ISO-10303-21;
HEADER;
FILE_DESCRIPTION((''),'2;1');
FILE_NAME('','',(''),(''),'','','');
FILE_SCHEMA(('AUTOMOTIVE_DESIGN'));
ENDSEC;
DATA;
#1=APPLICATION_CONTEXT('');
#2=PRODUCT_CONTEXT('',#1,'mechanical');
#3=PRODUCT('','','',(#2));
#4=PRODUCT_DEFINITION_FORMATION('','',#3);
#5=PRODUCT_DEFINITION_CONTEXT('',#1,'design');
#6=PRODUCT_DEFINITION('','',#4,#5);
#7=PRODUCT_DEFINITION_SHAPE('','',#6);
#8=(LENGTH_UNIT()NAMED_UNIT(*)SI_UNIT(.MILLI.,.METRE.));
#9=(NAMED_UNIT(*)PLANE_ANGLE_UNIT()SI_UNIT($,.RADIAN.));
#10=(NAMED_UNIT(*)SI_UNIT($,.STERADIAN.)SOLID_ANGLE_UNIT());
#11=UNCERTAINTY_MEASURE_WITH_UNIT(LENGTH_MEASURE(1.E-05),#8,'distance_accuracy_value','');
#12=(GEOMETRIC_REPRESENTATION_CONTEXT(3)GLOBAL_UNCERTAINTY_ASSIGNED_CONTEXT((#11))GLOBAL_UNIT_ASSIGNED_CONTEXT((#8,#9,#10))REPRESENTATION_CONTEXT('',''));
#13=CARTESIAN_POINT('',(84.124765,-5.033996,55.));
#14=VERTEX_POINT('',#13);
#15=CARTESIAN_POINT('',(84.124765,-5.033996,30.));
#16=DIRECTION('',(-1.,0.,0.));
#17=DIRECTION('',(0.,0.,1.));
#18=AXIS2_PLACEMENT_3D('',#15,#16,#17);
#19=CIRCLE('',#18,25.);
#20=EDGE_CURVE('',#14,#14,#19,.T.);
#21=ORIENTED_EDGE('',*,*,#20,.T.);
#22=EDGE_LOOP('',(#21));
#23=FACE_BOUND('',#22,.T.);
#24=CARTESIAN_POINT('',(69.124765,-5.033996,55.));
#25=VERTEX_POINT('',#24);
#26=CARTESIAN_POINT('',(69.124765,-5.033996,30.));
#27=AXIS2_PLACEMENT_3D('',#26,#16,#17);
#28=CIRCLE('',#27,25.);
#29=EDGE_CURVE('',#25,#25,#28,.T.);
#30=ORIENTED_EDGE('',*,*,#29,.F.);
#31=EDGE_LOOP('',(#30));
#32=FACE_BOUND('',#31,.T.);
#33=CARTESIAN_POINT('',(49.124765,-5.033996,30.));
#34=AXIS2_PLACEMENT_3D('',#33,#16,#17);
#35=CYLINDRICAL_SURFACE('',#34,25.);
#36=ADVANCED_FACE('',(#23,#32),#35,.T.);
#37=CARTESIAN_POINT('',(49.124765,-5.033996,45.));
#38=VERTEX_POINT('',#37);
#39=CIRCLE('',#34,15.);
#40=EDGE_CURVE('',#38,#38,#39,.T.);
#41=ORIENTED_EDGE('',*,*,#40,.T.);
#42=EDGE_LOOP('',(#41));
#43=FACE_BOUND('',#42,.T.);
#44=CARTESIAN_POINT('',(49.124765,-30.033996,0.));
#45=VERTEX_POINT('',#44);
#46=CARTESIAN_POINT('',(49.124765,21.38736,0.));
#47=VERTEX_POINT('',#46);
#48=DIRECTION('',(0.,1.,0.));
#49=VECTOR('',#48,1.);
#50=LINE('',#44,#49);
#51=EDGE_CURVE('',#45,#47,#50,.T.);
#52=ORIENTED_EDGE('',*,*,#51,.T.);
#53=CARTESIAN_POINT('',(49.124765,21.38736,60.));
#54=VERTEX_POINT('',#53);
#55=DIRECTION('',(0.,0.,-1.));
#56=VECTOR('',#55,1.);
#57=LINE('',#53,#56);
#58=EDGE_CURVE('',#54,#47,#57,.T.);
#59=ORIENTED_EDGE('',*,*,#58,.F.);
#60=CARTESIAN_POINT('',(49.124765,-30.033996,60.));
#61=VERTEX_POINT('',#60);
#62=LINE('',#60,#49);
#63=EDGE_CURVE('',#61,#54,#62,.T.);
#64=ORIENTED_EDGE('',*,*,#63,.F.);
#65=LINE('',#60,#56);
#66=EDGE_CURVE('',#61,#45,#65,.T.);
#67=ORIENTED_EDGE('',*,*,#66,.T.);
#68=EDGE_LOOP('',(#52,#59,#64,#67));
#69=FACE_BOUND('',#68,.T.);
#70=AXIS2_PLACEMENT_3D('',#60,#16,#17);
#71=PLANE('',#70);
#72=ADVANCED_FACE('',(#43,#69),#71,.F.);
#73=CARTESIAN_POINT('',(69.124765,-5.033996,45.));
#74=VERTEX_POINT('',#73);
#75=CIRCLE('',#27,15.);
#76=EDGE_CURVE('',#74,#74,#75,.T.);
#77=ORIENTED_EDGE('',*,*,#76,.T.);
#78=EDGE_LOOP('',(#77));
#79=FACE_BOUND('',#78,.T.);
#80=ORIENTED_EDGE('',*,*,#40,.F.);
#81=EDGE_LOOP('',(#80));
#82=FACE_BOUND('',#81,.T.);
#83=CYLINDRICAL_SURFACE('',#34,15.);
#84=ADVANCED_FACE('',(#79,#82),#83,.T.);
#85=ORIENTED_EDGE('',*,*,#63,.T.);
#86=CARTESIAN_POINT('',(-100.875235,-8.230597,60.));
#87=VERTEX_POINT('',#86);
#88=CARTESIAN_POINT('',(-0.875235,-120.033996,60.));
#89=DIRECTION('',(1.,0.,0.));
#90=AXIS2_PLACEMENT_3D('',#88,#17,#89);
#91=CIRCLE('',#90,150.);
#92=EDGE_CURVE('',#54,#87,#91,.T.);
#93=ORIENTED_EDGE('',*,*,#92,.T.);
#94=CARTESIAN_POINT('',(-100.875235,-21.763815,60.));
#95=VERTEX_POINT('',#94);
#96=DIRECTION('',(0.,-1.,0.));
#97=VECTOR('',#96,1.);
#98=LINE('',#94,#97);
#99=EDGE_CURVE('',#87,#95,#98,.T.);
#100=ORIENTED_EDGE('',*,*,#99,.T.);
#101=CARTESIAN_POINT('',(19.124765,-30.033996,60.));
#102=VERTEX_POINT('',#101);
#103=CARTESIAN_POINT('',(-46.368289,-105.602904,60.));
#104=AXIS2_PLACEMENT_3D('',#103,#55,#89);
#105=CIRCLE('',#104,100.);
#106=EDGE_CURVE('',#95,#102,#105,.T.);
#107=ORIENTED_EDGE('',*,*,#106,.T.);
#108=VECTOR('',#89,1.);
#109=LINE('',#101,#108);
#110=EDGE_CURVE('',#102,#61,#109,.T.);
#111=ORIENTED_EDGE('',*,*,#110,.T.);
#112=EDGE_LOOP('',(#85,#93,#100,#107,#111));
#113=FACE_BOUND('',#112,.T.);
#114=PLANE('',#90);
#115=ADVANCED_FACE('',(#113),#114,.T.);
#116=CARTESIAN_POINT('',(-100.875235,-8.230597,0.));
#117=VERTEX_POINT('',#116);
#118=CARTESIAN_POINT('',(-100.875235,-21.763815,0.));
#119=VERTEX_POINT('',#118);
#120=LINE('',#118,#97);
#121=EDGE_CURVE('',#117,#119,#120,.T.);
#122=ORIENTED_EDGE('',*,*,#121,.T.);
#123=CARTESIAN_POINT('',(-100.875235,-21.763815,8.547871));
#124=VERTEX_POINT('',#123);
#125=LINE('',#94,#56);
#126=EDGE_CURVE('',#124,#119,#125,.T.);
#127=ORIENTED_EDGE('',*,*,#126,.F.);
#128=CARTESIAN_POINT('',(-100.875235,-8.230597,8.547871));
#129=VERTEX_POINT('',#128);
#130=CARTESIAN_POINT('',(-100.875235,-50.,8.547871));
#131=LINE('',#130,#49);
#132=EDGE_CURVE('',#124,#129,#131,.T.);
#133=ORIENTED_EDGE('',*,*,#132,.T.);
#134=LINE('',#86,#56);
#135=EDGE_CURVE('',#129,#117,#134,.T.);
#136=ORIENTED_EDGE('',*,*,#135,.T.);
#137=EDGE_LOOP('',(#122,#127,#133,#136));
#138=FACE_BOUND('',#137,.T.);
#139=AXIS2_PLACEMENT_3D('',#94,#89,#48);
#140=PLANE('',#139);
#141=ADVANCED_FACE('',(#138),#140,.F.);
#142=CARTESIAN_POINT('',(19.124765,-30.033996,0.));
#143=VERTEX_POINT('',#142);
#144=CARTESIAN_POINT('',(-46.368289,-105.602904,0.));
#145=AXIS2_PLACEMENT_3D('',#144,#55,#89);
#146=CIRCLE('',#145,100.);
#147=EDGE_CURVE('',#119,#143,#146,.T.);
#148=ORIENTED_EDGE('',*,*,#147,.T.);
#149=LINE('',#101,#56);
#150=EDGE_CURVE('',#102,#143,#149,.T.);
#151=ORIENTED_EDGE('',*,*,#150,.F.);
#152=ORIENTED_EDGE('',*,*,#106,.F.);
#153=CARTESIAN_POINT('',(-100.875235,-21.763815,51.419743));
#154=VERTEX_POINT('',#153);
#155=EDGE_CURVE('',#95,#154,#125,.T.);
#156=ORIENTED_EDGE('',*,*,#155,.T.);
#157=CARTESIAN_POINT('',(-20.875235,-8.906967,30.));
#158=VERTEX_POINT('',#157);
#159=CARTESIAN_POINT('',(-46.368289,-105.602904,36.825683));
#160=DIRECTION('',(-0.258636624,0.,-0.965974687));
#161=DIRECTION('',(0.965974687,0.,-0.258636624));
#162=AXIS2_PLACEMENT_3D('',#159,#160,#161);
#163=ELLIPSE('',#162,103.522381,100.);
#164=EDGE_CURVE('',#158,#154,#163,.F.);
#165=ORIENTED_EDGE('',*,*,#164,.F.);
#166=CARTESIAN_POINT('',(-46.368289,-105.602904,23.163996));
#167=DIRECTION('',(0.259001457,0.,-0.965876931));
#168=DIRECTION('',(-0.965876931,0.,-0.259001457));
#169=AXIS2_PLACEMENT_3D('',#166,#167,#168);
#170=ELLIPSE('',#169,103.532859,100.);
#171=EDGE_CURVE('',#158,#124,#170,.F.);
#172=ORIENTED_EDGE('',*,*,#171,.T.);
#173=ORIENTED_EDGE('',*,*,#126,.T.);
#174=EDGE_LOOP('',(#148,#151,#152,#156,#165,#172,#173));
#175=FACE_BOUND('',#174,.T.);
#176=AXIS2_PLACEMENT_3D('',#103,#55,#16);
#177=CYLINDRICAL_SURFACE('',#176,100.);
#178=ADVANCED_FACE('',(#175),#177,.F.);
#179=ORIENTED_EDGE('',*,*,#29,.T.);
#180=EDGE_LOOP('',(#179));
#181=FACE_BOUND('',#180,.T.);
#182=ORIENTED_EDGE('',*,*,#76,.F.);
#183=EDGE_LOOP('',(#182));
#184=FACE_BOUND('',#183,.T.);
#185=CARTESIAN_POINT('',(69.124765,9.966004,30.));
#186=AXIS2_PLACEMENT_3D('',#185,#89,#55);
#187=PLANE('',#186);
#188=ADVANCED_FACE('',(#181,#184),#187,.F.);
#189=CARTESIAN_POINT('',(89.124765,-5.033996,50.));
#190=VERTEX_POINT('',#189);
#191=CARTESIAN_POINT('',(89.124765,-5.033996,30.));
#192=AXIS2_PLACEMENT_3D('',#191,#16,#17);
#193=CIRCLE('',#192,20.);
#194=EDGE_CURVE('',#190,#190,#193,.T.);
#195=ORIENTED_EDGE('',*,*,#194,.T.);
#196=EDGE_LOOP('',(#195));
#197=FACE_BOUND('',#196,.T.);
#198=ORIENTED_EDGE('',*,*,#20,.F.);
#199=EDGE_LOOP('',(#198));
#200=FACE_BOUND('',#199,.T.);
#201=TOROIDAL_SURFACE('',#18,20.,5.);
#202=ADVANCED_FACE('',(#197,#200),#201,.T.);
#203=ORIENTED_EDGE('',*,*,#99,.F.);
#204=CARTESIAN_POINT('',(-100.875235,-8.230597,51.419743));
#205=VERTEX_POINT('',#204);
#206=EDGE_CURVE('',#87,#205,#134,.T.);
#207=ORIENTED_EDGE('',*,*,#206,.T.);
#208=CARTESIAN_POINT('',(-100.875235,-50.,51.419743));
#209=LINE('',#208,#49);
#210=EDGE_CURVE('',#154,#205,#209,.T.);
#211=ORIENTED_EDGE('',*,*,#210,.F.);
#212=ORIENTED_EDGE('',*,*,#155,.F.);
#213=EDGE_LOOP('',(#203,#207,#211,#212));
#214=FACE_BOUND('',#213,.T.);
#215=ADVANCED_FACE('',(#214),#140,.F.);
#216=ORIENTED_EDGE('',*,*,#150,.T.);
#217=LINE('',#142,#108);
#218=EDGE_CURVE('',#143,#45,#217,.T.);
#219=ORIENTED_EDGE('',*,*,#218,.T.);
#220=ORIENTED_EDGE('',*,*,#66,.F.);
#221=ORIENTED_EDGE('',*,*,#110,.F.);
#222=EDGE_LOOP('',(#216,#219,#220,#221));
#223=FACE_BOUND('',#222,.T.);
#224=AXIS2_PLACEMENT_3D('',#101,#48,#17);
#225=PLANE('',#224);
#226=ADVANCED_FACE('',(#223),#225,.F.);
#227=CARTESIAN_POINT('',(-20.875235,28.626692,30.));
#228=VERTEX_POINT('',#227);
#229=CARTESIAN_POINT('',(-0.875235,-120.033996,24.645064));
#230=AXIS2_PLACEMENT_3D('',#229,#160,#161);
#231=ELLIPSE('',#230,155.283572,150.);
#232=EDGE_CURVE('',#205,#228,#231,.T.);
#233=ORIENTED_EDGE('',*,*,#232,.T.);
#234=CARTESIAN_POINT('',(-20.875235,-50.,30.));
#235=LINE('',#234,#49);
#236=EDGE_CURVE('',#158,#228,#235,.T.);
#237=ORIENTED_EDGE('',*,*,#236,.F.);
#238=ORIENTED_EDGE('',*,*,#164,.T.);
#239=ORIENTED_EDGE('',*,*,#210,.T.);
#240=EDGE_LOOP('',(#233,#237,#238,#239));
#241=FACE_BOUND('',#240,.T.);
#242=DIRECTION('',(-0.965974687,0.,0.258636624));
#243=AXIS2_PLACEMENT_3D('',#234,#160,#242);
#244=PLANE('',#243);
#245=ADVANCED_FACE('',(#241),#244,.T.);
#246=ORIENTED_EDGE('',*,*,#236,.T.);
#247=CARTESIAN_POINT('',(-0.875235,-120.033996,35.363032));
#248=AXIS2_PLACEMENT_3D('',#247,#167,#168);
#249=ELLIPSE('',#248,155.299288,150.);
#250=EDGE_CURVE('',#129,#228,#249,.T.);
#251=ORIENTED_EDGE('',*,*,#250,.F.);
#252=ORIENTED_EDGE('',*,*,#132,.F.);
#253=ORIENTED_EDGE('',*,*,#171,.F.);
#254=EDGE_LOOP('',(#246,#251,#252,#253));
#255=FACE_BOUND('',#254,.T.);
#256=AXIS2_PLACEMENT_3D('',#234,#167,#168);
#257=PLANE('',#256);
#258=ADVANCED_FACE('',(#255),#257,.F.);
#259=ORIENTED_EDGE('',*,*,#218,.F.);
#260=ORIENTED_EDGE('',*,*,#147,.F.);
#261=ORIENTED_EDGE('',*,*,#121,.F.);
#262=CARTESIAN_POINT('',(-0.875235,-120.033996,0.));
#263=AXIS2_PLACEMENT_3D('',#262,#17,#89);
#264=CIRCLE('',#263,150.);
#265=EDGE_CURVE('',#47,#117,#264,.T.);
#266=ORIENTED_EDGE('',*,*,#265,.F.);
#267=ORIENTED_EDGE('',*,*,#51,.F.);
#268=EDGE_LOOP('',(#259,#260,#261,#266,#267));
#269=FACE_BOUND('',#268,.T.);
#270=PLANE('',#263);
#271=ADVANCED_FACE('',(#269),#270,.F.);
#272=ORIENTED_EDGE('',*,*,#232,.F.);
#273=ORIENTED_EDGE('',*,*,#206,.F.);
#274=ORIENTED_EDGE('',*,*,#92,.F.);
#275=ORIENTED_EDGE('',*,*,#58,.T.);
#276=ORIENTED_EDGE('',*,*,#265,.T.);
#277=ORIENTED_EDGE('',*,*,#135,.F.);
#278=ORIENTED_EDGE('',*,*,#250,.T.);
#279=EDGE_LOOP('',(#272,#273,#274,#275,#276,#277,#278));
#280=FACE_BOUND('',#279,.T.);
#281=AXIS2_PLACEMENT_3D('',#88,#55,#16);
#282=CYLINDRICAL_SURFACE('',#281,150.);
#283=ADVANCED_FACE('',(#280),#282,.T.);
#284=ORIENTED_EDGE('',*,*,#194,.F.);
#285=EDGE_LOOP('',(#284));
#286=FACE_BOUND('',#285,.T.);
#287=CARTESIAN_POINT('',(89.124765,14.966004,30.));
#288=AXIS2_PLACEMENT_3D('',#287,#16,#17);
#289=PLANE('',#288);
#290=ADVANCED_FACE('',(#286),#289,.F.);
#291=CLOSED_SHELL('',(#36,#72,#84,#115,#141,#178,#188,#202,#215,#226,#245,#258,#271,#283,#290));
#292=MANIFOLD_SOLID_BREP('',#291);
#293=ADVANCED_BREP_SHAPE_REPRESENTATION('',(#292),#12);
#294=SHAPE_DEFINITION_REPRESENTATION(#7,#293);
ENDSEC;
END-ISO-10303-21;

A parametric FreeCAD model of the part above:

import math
import FreeCAD as App
import Part
import Sketcher
Q = App.Units.Quantity

doc = App.newDocument("Part")
body = doc.addObject("PartDesign::Body", "Body")

# Sketch on XY plane
sketch1 = body.newObject("Sketcher::SketchObject", "Sketch")
sketch1.AttachmentSupport = (doc.getObject("XY_Plane"), [""])
sketch1.MapMode = "FlatFace"
sketch1.addGeometry([
    Part.LineSegment(App.Vector(49, -30, 0), App.Vector(49, 21, 0)),  # 0
    Part.ArcOfCircle(Part.Circle(App.Vector(-1, -120, 0), App.Vector(0, 0, 1), 150), math.radians(71), math.radians(132)),  # 1
    Part.LineSegment(App.Vector(-101, -8, 0), App.Vector(-101, -22, 0)),  # 2
    Part.ArcOfCircle(Part.Circle(App.Vector(-46, -106, 0), App.Vector(0, 0, 1), 100), math.radians(49), math.radians(123)),  # 3
    Part.LineSegment(App.Vector(19, -30, 0), App.Vector(49, -30, 0)),  # 4
], False)
sketch1.addConstraint([
    Sketcher.Constraint("Coincident", 0, 2, 1, 1),
    Sketcher.Constraint("Coincident", 1, 2, 2, 1),
    Sketcher.Constraint("Coincident", 2, 2, 3, 2),
    Sketcher.Constraint("Coincident", 3, 1, 4, 1),
    Sketcher.Constraint("Coincident", 4, 2, 0, 1),
    Sketcher.Constraint("Vertical", 0),
    Sketcher.Constraint("Vertical", 2),
    Sketcher.Constraint("Horizontal", 4),
    Sketcher.Constraint("Radius", 1, Q("150 mm")),
    Sketcher.Constraint("Radius", 3, Q("100 mm")),
    Sketcher.Constraint("DistanceX", 4, 1, 4, 2, Q("30 mm")),
    Sketcher.Constraint("DistanceX", 1, 3, 0, 2, Q("50 mm")),
    Sketcher.Constraint("DistanceX", 1, 2, 1, 3, Q("100 mm")),
    Sketcher.Constraint("DistanceY", 1, 3, 3, 1, Q("90 mm")),
    Sketcher.Constraint("DistanceY", 2, 2, 2, 1, Q("13.533218 mm")),
    Sketcher.Constraint("DistanceX", 3, 3, -1, 1, Q("46.368289 mm")),
    Sketcher.Constraint("DistanceY", -1, 1, 0, 2, Q("21.38736 mm")),
])
pad1 = body.newObject("PartDesign::Pad", "Pad")
pad1.Profile = sketch1
pad1.Length = 60

# Sketch on XY plane
sketch2 = body.newObject("Sketcher::SketchObject", "Sketch001")
sketch2.AttachmentSupport = (doc.getObject("XY_Plane"), [""])
sketch2.MapMode = "FlatFace"
sketch2.AttachmentOffset = App.Placement(App.Vector(0, 0, 30), App.Rotation())
sketch2.addGeometry([
    Part.LineSegment(App.Vector(49, 10, 0), App.Vector(49, -5, 0)),  # 0
    Part.LineSegment(App.Vector(49, -5, 0), App.Vector(89, -5, 0)),  # 1
    Part.LineSegment(App.Vector(89, -5, 0), App.Vector(89, 15, 0)),  # 2
    Part.ArcOfCircle(Part.Circle(App.Vector(84, 15, 0), App.Vector(0, 0, 1), 5), math.radians(0), math.radians(90)),  # 3
    Part.LineSegment(App.Vector(84, 20, 0), App.Vector(69, 20, 0)),  # 4
    Part.LineSegment(App.Vector(69, 20, 0), App.Vector(69, 10, 0)),  # 5
    Part.LineSegment(App.Vector(69, 10, 0), App.Vector(49, 10, 0)),  # 6
], False)
sketch2.addGeometry(Part.LineSegment(App.Vector(49, -5, 0), App.Vector(89, -5, 0)), True)  # axis
sketch2.addConstraint([
    Sketcher.Constraint("Coincident", 0, 2, 1, 1),
    Sketcher.Constraint("Coincident", 1, 2, 2, 1),
    Sketcher.Constraint("Tangent", 2, 2, 3, 1),
    Sketcher.Constraint("Tangent", 3, 2, 4, 1),
    Sketcher.Constraint("Coincident", 4, 2, 5, 1),
    Sketcher.Constraint("Coincident", 5, 2, 6, 1),
    Sketcher.Constraint("Coincident", 6, 2, 0, 1),
    Sketcher.Constraint("Vertical", 0),
    Sketcher.Constraint("Horizontal", 1),
    Sketcher.Constraint("Vertical", 2),
    Sketcher.Constraint("Horizontal", 4),
    Sketcher.Constraint("Vertical", 5),
    Sketcher.Constraint("Horizontal", 6),
    Sketcher.Constraint("Horizontal", 7),
    Sketcher.Constraint("Coincident", 7, 1, 0, 2),
    Sketcher.Constraint("Vertical", 2, 2, 7, 2),
    Sketcher.Constraint("Equal", 4, 0),
    Sketcher.Constraint("Equal", 6, 2),
    Sketcher.Constraint("Radius", 3, Q("5 mm")),
    Sketcher.Constraint("DistanceX", 1, 1, 1, 2, Q("40 mm")),
    Sketcher.Constraint("DistanceX", 4, 2, 4, 1, Q("15 mm")),
    Sketcher.Constraint("DistanceX", -1, 1, 3, 3, Q("84.124765 mm")),
    Sketcher.Constraint("DistanceY", -1, 1, 3, 3, Q("14.966004 mm")),
])
revolution = body.newObject("PartDesign::Revolution", "Revolution")
revolution.Profile = sketch2
revolution.ReferenceAxis = (sketch2, ["Axis0"])
revolution.Angle = 360

# Sketch on XZ plane
sketch3 = body.newObject("Sketcher::SketchObject", "Sketch002")
sketch3.AttachmentSupport = (doc.getObject("XZ_Plane"), [""])
sketch3.MapMode = "FlatFace"
sketch3.addGeometry([
    Part.LineSegment(App.Vector(-101, 9, 0), App.Vector(-101, 51, 0)),
    Part.LineSegment(App.Vector(-101, 51, 0), App.Vector(-21, 30, 0)),
    Part.LineSegment(App.Vector(-21, 30, 0), App.Vector(-101, 9, 0)),
], False)
sketch3.addConstraint([
    Sketcher.Constraint("Coincident", 0, 2, 1, 1),
    Sketcher.Constraint("Coincident", 1, 2, 2, 1),
    Sketcher.Constraint("Coincident", 2, 2, 0, 1),
    Sketcher.Constraint("Vertical", 0),
    Sketcher.Constraint("DistanceY", -1, 1, 1, 2, Q("30 mm")),
    Sketcher.Constraint("DistanceX", 0, 2, 1, 2, Q("80 mm")),
    Sketcher.Constraint("DistanceY", 0, 1, 0, 2, Q("42.871872 mm")),
    Sketcher.Constraint("DistanceY", -1, 1, 2, 2, Q("8.547871 mm")),
    Sketcher.Constraint("DistanceX", 0, 2, -1, 1, Q("100.875235 mm")),
])
pocket1 = body.newObject("PartDesign::Pocket", "Pocket")
pocket1.Profile = sketch3
pocket1.Length = 50
pocket1.Reversed = True

# Sketch on XZ plane
sketch4 = body.newObject("Sketcher::SketchObject", "Sketch003")
sketch4.AttachmentSupport = (doc.getObject("XZ_Plane"), [""])
sketch4.MapMode = "FlatFace"
sketch4.addGeometry([
    Part.LineSegment(App.Vector(-21, 30, 0), App.Vector(-91, 49, 0)),
    Part.LineSegment(App.Vector(-91, 49, 0), App.Vector(-91, 11, 0)),
    Part.LineSegment(App.Vector(-91, 11, 0), App.Vector(-21, 30, 0)),
], False)
sketch4.addConstraint([
    Sketcher.Constraint("Coincident", 0, 2, 1, 1),
    Sketcher.Constraint("Coincident", 1, 2, 2, 1),
    Sketcher.Constraint("Coincident", 2, 2, 0, 1),
    Sketcher.Constraint("Vertical", 1),
    Sketcher.Constraint("DistanceY", -1, 1, 2, 2, Q("30 mm")),
    Sketcher.Constraint("DistanceY", 1, 2, 1, 1, Q("37.488588 mm")),
    Sketcher.Constraint("DistanceX", 0, 2, -1, 1, Q("90.82989 mm")),
    Sketcher.Constraint("Distance", 0, Q("72.418724 mm")),
    Sketcher.Constraint("Distance", 2, Q("72.426053 mm")),
])
pocket2 = body.newObject("PartDesign::Pocket", "Pocket001")
pocket2.Profile = sketch4
pocket2.Length = 50

doc.recompute()
